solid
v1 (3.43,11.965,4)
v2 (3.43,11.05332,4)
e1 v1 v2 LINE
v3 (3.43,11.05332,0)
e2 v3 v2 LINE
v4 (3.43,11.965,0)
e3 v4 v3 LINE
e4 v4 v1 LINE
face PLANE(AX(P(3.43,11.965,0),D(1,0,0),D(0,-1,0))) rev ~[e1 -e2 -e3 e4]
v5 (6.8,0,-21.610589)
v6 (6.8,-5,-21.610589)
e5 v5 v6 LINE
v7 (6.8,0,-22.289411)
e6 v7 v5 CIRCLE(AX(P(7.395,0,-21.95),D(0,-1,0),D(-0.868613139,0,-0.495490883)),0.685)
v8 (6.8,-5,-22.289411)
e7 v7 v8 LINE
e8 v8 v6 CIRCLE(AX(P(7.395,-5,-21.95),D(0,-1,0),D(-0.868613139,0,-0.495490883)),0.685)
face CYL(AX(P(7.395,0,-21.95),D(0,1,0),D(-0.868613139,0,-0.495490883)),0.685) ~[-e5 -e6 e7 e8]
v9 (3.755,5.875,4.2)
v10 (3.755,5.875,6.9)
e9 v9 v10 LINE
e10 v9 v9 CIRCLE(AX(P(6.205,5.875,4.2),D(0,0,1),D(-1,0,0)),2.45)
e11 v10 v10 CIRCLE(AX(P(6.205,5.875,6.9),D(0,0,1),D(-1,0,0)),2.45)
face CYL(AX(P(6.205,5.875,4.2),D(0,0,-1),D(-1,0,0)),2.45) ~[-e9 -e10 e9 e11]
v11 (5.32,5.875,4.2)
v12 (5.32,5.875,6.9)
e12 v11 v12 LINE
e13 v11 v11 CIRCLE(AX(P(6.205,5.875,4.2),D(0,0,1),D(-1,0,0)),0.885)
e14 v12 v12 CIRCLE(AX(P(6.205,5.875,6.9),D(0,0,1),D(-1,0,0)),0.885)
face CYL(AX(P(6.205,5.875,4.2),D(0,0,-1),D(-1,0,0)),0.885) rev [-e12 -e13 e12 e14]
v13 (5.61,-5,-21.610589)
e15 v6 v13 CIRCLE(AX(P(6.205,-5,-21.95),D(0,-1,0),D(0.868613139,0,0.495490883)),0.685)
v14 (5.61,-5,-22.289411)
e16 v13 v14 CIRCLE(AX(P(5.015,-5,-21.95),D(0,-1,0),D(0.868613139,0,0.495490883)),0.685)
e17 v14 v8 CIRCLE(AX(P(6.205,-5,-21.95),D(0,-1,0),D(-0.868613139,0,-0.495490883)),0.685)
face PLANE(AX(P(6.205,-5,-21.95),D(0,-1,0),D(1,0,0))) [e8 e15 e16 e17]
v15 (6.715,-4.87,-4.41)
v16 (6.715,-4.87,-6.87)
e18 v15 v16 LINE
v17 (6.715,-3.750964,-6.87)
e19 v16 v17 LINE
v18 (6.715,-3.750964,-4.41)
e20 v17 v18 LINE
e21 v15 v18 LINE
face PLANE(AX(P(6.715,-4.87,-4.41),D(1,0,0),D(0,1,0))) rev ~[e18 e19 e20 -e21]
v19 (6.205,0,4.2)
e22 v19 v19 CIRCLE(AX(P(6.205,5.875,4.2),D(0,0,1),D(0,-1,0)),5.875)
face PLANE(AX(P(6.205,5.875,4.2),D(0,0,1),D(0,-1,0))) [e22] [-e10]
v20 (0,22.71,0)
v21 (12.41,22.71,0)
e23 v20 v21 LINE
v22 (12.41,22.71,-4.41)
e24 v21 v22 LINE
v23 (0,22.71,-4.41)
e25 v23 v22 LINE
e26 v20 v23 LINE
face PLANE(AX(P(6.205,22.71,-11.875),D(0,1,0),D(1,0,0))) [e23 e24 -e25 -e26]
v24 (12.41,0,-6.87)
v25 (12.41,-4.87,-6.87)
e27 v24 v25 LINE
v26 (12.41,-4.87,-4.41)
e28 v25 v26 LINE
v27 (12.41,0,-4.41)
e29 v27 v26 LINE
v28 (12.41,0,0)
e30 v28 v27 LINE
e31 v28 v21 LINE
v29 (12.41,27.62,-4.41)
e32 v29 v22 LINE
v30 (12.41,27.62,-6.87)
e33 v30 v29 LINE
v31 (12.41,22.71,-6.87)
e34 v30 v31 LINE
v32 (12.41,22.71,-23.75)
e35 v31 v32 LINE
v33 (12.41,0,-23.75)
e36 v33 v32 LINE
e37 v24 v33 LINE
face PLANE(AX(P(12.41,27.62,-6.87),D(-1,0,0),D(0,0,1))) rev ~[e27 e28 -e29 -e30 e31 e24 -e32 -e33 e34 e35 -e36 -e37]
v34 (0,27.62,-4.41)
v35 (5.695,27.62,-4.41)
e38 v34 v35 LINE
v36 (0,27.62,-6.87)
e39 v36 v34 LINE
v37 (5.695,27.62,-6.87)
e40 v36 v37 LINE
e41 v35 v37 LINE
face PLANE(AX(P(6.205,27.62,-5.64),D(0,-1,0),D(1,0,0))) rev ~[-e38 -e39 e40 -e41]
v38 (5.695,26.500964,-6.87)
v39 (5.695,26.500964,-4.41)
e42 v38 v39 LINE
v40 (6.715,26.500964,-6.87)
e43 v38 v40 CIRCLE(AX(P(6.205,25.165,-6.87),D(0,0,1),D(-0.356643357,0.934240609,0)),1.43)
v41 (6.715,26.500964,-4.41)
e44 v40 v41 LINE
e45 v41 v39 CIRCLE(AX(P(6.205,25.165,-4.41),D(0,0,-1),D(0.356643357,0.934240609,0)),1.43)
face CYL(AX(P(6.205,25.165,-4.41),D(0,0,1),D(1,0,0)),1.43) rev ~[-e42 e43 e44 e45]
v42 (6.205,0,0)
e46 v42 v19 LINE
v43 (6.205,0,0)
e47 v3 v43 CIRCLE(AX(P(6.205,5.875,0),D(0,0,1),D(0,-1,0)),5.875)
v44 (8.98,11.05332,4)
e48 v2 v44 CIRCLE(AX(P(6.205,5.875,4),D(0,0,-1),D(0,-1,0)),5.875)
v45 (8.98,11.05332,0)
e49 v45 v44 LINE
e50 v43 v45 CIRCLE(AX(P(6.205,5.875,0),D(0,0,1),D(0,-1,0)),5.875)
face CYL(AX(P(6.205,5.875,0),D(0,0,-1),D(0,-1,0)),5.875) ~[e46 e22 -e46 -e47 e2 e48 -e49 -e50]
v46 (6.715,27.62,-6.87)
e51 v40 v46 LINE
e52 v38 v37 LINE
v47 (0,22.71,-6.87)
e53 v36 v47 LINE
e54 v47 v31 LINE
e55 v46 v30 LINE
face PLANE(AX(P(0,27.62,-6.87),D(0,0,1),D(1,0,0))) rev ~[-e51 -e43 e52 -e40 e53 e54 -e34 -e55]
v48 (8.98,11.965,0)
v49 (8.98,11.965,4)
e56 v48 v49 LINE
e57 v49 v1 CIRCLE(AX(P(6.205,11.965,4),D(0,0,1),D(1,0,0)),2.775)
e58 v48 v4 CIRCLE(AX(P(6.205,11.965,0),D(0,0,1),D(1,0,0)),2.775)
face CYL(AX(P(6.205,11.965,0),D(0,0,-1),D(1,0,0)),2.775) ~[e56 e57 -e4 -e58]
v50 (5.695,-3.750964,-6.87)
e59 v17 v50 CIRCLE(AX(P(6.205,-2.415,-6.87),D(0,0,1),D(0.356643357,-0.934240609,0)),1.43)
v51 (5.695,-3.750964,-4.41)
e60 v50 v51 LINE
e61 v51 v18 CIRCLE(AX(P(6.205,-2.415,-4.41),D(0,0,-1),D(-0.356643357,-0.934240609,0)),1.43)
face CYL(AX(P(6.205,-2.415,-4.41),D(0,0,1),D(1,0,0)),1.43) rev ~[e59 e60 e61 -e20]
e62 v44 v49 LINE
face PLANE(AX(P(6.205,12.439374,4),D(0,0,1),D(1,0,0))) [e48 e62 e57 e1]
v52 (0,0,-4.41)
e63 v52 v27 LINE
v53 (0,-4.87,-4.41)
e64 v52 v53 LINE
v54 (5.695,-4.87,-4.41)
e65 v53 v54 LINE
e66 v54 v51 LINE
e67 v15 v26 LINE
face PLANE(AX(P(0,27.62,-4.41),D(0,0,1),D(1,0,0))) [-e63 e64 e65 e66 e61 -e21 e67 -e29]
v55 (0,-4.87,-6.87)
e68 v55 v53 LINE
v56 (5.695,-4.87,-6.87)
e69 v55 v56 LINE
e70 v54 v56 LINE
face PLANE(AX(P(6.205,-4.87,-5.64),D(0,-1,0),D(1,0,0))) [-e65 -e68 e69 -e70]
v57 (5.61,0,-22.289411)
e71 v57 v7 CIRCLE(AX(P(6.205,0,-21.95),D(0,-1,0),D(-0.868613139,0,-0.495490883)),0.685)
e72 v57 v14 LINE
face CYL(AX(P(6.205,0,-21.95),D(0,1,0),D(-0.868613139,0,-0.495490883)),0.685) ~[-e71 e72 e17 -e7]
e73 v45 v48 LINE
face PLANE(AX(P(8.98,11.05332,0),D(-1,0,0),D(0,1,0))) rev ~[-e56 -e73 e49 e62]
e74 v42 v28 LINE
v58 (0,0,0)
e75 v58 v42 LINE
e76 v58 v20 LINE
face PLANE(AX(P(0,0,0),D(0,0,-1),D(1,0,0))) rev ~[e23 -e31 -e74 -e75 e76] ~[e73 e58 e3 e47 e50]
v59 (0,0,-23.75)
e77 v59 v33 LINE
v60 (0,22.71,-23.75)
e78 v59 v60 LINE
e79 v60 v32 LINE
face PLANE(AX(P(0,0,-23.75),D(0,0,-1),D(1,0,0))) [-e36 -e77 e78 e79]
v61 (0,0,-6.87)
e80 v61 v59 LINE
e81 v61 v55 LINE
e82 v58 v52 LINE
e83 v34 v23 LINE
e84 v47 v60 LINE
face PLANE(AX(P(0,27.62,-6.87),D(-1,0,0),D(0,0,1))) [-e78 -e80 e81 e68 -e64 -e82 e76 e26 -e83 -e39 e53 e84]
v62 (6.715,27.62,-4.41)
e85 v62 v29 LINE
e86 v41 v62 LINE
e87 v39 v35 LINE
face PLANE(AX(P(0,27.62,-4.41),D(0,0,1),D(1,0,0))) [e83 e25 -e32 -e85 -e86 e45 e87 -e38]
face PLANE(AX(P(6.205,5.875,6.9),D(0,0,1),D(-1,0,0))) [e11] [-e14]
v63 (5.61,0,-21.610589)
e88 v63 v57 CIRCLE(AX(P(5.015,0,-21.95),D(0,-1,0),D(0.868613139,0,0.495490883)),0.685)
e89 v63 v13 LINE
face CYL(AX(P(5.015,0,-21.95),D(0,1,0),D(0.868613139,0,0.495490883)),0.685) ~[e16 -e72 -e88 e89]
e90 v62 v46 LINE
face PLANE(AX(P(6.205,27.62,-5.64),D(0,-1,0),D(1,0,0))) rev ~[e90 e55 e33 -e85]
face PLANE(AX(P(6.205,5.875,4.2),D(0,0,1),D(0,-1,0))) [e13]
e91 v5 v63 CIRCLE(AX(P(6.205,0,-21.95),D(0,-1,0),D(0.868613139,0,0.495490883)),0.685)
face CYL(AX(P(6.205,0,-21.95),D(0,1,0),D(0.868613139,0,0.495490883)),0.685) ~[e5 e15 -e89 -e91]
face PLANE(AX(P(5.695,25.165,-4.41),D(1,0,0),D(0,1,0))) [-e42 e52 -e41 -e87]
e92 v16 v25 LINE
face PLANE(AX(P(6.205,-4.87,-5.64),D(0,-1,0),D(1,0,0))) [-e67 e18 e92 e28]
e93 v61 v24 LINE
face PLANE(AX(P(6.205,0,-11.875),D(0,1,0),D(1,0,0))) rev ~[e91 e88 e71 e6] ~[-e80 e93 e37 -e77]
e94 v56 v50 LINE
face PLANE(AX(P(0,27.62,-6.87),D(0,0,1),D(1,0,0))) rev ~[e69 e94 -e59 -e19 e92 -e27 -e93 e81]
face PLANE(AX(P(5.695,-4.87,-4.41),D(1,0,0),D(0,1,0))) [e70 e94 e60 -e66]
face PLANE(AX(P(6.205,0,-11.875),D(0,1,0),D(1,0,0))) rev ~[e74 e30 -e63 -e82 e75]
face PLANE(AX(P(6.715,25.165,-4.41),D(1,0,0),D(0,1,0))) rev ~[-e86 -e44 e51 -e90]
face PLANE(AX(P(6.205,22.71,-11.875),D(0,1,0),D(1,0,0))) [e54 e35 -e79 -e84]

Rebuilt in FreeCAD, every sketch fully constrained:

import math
import FreeCAD as App
import Part
import Sketcher

V = App.Vector


def add_polygon(sketch, points):
    """Adds a closed chain of lines whose ends are joined by coincident constraints."""
    first, n = sketch.GeometryCount, len(points)
    for a, b in zip(points, points[1:] + points[:1]):
        sketch.addGeometry(Part.LineSegment(App.Vector(*a, 0), App.Vector(*b, 0)), False)
    for i in range(n):
        sketch.addConstraint(Sketcher.Constraint("Coincident", first + i, 2, first + (i + 1) % n, 1))

doc = App.newDocument("Part")
body = doc.addObject("PartDesign::Body", "Body")

# Sketch on XZ plane
sketch1 = body.newObject("Sketcher::SketchObject", "Sketch")
sketch1.AttachmentSupport = (doc.getObject("XZ_Plane"), [""])
sketch1.MapMode = "FlatFace"
add_polygon(sketch1, [(0, -23.75), (0, 0), (12.41, 0), (12.41, -23.75)])  # lines 0-3
sketch1.addConstraint([
    Sketcher.Constraint("Vertical", 0),
    Sketcher.Constraint("Horizontal", 1),
    Sketcher.Constraint("Vertical", 2),
    Sketcher.Constraint("Horizontal", 3),
    Sketcher.Constraint("Coincident", 0, 2, -1, 1),
    Sketcher.Constraint("DistanceX", 1, 1, 1, 2, 12.41),
    Sketcher.Constraint("DistanceY", 0, 1, 0, 2, 23.75),
])
pad1 = body.newObject("PartDesign::Pad", "Pad")
pad1.Profile = sketch1
pad1.Length = 22.71
pad1.Reversed = True

# Sketch on XY plane
sketch2 = body.newObject("Sketcher::SketchObject", "Sketch001")
sketch2.AttachmentSupport = (doc.getObject("XY_Plane"), [""])
sketch2.MapMode = "FlatFace"
sketch2.addGeometry(Part.Circle(V(6.205, 5.875, 0), V(0, 0, 1), 5.875), False)
sketch2.addConstraint([
    Sketcher.Constraint("Diameter", 0, 11.75),
    Sketcher.Constraint("DistanceX", -1, 1, 0, 3, 6.205),
    Sketcher.Constraint("DistanceY", -1, 1, 0, 3, 5.875),
])
pad2 = body.newObject("PartDesign::Pad", "Pad001")
pad2.Profile = sketch2
pad2.Length = 4.2

# Sketch on XY plane
sketch3 = body.newObject("Sketcher::SketchObject", "Sketch002")
sketch3.AttachmentSupport = (doc.getObject("XY_Plane"), [""])
sketch3.MapMode = "FlatFace"
sketch3.addGeometry([
    Part.LineSegment(V(3.43, 11.965, 0), V(3.43, 11.05332, 0)),
    Part.LineSegment(V(3.43, 11.05332, 0), V(8.98, 11.05332, 0)),
    Part.LineSegment(V(8.98, 11.05332, 0), V(8.98, 11.965, 0)),
    Part.ArcOfCircle(Part.Circle(V(6.205, 11.965, 0), V(0, 0, 1), 2.775), math.radians(0), math.radians(180)),
], False)
sketch3.addConstraint([
    Sketcher.Constraint("Coincident", 0, 2, 1, 1),
    Sketcher.Constraint("Coincident", 1, 2, 2, 1),
    Sketcher.Constraint("Tangent", 2, 2, 3, 1),
    Sketcher.Constraint("Tangent", 3, 2, 0, 1),
    Sketcher.Constraint("Vertical", 0),
    Sketcher.Constraint("Horizontal", 1),
    Sketcher.Constraint("Vertical", 2),
    Sketcher.Constraint("Radius", 3, 2.775),
    Sketcher.Constraint("DistanceX", -1, 1, 0, 2, 3.43),
    Sketcher.Constraint("DistanceY", -1, 1, 3, 3, 11.965),
    Sketcher.Constraint("DistanceY", 0, 2, 0, 1, 0.91168),
])
pad3 = body.newObject("PartDesign::Pad", "Pad002")
pad3.Profile = sketch3
pad3.Length = 4

# Sketch on XZ plane
sketch4 = body.newObject("Sketcher::SketchObject", "Sketch003")
sketch4.AttachmentSupport = (doc.getObject("XZ_Plane"), [""])
sketch4.MapMode = "FlatFace"
add_polygon(sketch4, [(0, -4.41), (0, -6.87), (12.41, -6.87), (12.41, -4.41)])  # lines 0-3
sketch4.addConstraint([
    Sketcher.Constraint("Vertical", 0),
    Sketcher.Constraint("Horizontal", 1),
    Sketcher.Constraint("Vertical", 2),
    Sketcher.Constraint("Horizontal", 3),
    Sketcher.Constraint("PointOnObject", 0, 2, -2),
    Sketcher.Constraint("DistanceX", 1, 1, 1, 2, 12.41),
    Sketcher.Constraint("DistanceY", 0, 2, 0, 1, 2.46),
    Sketcher.Constraint("DistanceY", 0, 2, -1, 1, 6.87),
])
pad4 = body.newObject("PartDesign::Pad", "Pad003")
pad4.Profile = sketch4
pad4.Type = "TwoLengths"
pad4.Length = 4.87
pad4.Length2 = 27.62

# Sketch on XY plane
sketch5 = body.newObject("Sketcher::SketchObject", "Sketch004")
sketch5.AttachmentSupport = (doc.getObject("XY_Plane"), [""])
sketch5.MapMode = "FlatFace"
sketch5.AttachmentOffset = App.Placement(V(0, 0, -4.41), App.Rotation())
sketch5.addGeometry([
    Part.Circle(V(6.205, 25.165, 0), V(0, 0, 1), 1.43),
    Part.Circle(V(6.205, -2.415, 0), V(0, 0, 1), 1.43),
], False)
sketch5.addConstraint([
    Sketcher.Constraint("Equal", 0, 1),
    Sketcher.Constraint("Vertical", 0, 3, 1, 3),
    Sketcher.Constraint("Diameter", 0, 2.86),
    Sketcher.Constraint("DistanceY", 1, 3, 0, 3, 27.58),
    Sketcher.Constraint("DistanceX", -1, 1, 0, 3, 6.205),
    Sketcher.Constraint("DistanceY", -1, 1, 0, 3, 25.165),
])
pocket1 = body.newObject("PartDesign::Pocket", "Pocket")
pocket1.Profile = sketch5
pocket1.Type = "ThroughAll"

# Sketch on XY plane
sketch6 = body.newObject("Sketcher::SketchObject", "Sketch005")
sketch6.AttachmentSupport = (doc.getObject("XY_Plane"), [""])
sketch6.MapMode = "FlatFace"
sketch6.AttachmentOffset = App.Placement(V(0, 0, -4.41), App.Rotation())
add_polygon(sketch6, [(5.695, 27.62), (5.695, 25.165), (6.715, 25.165), (6.715, 27.62)])  # lines 0-3
add_polygon(sketch6, [(5.695, -2.415), (5.695, -4.87), (6.715, -4.87), (6.715, -2.415)])  # lines 4-7
sketch6.addConstraint([
    Sketcher.Constraint("Vertical", 0),
    Sketcher.Constraint("Horizontal", 1),
    Sketcher.Constraint("Vertical", 2),
    Sketcher.Constraint("Horizontal", 3),
    Sketcher.Constraint("Vertical", 4),
    Sketcher.Constraint("Horizontal", 5),
    Sketcher.Constraint("Vertical", 6),
    Sketcher.Constraint("Horizontal", 7),
    Sketcher.Constraint("Vertical", 3, 2, 4, 2),
    Sketcher.Constraint("Vertical", 2, 2, 5, 2),
    Sketcher.Constraint("Equal", 2, 4),
    Sketcher.Constraint("DistanceX", 1, 1, 1, 2, 1.02),
    Sketcher.Constraint("DistanceY", 0, 2, 0, 1, 2.455),
    Sketcher.Constraint("DistanceY", -1, 1, 2, 2, 27.62),
    Sketcher.Constraint("DistanceY", 4, 2, -1, 1, 4.87),
    Sketcher.Constraint("DistanceX", -1, 1, 0, 2, 5.695),
])
pocket2 = body.newObject("PartDesign::Pocket", "Pocket001")
pocket2.Profile = sketch6
pocket2.Type = "ThroughAll"

# Sketch on XY plane
sketch7 = body.newObject("Sketcher::SketchObject", "Sketch006")
sketch7.AttachmentSupport = (doc.getObject("XY_Plane"), [""])
sketch7.MapMode = "FlatFace"
sketch7.AttachmentOffset = App.Placement(V(0, 0, 4.2), App.Rotation())
sketch7.addGeometry([
    Part.Circle(V(6.205, 5.875, 0), V(0, 0, 1), 2.45),
    Part.Circle(V(6.205, 5.875, 0), V(0, 0, 1), 0.885),
], False)
sketch7.addConstraint([
    Sketcher.Constraint("Coincident", 1, 3, 0, 3),
    Sketcher.Constraint("Diameter", 0, 4.9),
    Sketcher.Constraint("Diameter", 1, 1.77),
    Sketcher.Constraint("DistanceX", -1, 1, 0, 3, 6.205),
    Sketcher.Constraint("DistanceY", -1, 1, 0, 3, 5.875),
])
pad5 = body.newObject("PartDesign::Pad", "Pad004")
pad5.Profile = sketch7
pad5.Length = 2.7

# Sketch on XZ plane
sketch8 = body.newObject("Sketcher::SketchObject", "Sketch007")
sketch8.AttachmentSupport = (doc.getObject("XZ_Plane"), [""])
sketch8.MapMode = "FlatFace"
sketch8.addGeometry([
    Part.ArcOfCircle(Part.Circle(V(6.205, -21.95, 0), V(0, 0, 1), 0.685), math.radians(-150.297875), math.radians(-29.702125)),
    Part.ArcOfCircle(Part.Circle(V(7.395, -21.95, 0), V(0, 0, 1), 0.685), math.radians(-150.297875), math.radians(150.297875)),
    Part.ArcOfCircle(Part.Circle(V(6.205, -21.95, 0), V(0, 0, 1), 0.685), math.radians(29.702125), math.radians(150.297875)),
    Part.ArcOfCircle(Part.Circle(V(5.015, -21.95, 0), V(0, 0, 1), 0.685), math.radians(29.702125), math.radians(330.297875)),
], False)
sketch8.addConstraint([
    Sketcher.Constraint("Coincident", 0, 2, 1, 1),
    Sketcher.Constraint("Coincident", 1, 2, 2, 1),
    Sketcher.Constraint("Coincident", 2, 2, 3, 1),
    Sketcher.Constraint("Coincident", 3, 2, 0, 1),
    Sketcher.Constraint("Coincident", 2, 3, 0, 3),
    Sketcher.Constraint("Equal", 0, 1),
    Sketcher.Constraint("Equal", 1, 2),
    Sketcher.Constraint("Equal", 2, 3),
    Sketcher.Constraint("Horizontal", 0, 3, 1, 3),
    Sketcher.Constraint("Horizontal", 2, 3, 3, 3),
    Sketcher.Constraint("Horizontal", 1, 2, 2, 2),
    Sketcher.Constraint("Radius", 0, 0.685),
    Sketcher.Constraint("DistanceX", -1, 1, 0, 2, 6.8),
    Sketcher.Constraint("DistanceY", 0, 3, -1, 1, 21.95),
    Sketcher.Constraint("DistanceX", -1, 1, 2, 2, 5.61),
])
pad6 = body.newObject("PartDesign::Pad", "Pad005")
pad6.Profile = sketch8
pad6.Length = 5

doc.recompute()
